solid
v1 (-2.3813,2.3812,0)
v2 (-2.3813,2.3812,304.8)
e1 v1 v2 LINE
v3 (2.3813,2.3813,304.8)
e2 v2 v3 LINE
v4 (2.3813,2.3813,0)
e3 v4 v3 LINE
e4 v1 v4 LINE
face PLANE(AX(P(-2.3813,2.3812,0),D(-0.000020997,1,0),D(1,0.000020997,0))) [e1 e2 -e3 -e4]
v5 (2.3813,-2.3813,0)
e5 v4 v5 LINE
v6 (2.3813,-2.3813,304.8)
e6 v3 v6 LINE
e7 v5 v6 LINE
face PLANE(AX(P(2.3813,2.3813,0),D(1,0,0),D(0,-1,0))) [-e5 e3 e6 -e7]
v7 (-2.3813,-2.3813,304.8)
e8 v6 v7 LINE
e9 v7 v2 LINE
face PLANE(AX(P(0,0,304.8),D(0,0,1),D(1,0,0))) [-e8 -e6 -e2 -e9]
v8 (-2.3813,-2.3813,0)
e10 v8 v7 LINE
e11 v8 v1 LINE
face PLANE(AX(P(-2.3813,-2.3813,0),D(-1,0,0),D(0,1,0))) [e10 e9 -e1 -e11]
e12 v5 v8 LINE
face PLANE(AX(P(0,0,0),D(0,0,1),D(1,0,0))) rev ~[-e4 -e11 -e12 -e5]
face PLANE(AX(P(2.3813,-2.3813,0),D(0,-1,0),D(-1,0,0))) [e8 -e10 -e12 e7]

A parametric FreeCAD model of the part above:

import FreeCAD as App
import Part
import Sketcher
Q = App.Units.Quantity


def add_polygon(sketch, points):
    """Adds a closed chain of lines whose ends are joined by coincident constraints."""
    first, n = sketch.GeometryCount, len(points)
    for a, b in zip(points, points[1:] + points[:1]):
        sketch.addGeometry(Part.LineSegment(App.Vector(*a, 0), App.Vector(*b, 0)), False)
    for i in range(n):
        sketch.addConstraint(Sketcher.Constraint("Coincident", first + i, 2, first + (i + 1) % n, 1))

doc = App.newDocument("Part")
body = doc.addObject("PartDesign::Body", "Body")

# Sketch on XY plane
sketch1 = body.newObject("Sketcher::SketchObject", "Sketch")
sketch1.AttachmentSupport = (doc.getObject("XY_Plane"), [""])
sketch1.MapMode = "FlatFace"
add_polygon(sketch1, [(-2.4, -2.4), (2.4, -2.4), (2.4, 2.4), (-2.4, 2.4)])  # lines 0-3
sketch1.addConstraint(Sketcher.Constraint("Horizontal", 0))
sketch1.addConstraint(Sketcher.Constraint("Vertical", 1))
sketch1.addConstraint(Sketcher.Constraint("Horizontal", 2))
sketch1.addConstraint(Sketcher.Constraint("Vertical", 3))
sketch1.addConstraint(Sketcher.Constraint("Symmetric", 0, 2, 2, 2, -1, 1))
sketch1.addConstraint(Sketcher.Constraint("Equal", 2, 1))
sketch1.addConstraint(Sketcher.Constraint("DistanceX", 0, 1, 0, 2, Q("0.1875 in")))
pad1 = body.newObject("PartDesign::Pad", "Pad")
pad1.Profile = sketch1
pad1.Length = Q("12 in")

doc.recompute()
